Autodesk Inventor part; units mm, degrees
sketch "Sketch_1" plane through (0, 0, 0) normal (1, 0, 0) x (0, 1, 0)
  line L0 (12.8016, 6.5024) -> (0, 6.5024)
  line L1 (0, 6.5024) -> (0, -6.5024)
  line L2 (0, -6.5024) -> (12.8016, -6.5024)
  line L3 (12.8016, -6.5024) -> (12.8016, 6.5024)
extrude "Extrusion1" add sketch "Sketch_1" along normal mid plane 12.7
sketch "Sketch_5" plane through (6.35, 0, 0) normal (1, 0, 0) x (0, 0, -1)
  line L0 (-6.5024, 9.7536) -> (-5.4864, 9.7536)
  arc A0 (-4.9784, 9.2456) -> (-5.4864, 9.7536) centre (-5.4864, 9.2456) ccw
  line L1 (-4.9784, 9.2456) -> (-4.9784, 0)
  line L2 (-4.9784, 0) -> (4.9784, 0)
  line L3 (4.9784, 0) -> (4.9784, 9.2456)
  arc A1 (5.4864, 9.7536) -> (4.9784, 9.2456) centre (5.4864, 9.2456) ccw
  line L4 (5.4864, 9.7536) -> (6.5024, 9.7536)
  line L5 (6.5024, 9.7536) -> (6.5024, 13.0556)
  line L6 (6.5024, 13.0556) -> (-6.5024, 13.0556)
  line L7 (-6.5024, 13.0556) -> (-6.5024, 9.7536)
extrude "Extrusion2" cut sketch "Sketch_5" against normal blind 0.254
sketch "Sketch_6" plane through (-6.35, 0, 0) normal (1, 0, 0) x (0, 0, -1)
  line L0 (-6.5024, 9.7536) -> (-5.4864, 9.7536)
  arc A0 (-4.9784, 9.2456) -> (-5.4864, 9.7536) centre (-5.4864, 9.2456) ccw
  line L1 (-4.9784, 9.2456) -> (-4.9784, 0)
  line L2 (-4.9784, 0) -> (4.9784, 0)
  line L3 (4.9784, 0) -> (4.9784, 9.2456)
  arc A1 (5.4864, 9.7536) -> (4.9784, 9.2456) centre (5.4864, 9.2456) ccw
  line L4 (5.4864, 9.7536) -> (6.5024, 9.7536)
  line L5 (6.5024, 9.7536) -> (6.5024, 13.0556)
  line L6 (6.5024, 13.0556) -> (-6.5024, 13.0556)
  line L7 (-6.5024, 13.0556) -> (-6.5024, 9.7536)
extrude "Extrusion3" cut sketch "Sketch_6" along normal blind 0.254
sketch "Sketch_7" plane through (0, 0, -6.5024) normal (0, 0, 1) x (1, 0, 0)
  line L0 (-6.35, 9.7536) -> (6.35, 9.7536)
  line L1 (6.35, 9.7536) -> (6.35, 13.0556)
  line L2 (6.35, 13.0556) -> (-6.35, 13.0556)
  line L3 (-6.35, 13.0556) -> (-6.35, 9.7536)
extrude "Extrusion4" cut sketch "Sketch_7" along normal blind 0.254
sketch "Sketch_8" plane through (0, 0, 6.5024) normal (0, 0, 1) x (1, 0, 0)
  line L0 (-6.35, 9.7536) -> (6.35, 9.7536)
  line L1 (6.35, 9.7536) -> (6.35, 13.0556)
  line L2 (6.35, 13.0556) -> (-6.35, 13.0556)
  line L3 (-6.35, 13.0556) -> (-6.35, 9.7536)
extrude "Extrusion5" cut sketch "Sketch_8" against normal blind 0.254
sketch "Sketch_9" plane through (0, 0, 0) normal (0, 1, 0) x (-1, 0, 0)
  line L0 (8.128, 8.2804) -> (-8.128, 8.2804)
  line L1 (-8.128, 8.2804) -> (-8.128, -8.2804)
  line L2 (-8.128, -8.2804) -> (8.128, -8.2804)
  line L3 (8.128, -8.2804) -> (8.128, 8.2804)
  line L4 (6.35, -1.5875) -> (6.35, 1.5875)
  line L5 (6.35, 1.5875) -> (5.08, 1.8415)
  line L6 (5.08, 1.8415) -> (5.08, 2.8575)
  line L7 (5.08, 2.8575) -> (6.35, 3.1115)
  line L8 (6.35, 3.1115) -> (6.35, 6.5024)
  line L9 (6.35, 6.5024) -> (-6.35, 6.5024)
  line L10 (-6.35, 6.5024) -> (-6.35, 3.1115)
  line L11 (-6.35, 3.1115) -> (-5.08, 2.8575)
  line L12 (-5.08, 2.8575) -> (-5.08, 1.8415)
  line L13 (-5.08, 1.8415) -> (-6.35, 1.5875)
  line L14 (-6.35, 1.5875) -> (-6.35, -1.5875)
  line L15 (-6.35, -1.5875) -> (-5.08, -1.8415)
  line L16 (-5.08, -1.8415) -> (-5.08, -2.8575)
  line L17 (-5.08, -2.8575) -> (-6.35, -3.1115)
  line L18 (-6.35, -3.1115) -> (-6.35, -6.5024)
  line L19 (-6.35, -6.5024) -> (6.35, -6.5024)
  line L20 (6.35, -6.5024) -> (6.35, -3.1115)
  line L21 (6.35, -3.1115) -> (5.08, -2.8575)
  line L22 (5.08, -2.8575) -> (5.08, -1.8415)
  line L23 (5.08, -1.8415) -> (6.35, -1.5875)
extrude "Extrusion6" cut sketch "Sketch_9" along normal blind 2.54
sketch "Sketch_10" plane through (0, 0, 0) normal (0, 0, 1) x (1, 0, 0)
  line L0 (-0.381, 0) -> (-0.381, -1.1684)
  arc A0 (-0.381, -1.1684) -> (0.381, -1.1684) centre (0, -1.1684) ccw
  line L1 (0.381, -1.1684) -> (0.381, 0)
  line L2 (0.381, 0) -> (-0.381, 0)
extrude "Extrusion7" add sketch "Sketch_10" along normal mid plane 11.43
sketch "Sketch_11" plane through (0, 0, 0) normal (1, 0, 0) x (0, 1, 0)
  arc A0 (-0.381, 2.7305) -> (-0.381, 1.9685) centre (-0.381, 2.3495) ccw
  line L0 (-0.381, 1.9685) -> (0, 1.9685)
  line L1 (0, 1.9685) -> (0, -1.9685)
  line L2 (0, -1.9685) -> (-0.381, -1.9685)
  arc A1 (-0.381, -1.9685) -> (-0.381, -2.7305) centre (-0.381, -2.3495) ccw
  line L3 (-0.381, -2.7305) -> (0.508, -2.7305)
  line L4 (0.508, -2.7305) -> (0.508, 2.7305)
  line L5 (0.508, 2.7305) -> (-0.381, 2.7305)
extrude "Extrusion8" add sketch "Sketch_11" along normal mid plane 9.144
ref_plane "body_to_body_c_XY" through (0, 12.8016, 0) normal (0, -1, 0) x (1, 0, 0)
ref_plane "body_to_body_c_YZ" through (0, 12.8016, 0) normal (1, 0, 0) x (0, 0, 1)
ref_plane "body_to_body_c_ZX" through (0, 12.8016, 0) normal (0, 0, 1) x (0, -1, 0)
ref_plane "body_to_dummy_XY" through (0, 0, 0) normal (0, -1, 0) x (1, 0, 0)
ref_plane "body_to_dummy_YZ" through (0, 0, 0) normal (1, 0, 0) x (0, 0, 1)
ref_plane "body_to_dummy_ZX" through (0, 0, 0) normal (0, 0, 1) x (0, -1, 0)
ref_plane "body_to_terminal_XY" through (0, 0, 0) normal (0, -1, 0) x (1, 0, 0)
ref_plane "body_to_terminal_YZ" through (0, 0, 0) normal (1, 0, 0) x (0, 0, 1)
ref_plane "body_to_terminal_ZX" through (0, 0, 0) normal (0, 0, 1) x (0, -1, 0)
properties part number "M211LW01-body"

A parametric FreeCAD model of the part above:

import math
import FreeCAD as App
import Part
import Sketcher
from FreeCAD import Vector
Q = App.Units.Quantity

doc = App.newDocument("Part")
body = doc.addObject("PartDesign::Body", "Body")

# Sketch on YZ plane
sketch1 = body.newObject("Sketcher::SketchObject", "Sketch")
sketch1.AttachmentSupport = (doc.getObject("YZ_Plane"), [""])
sketch1.MapMode = "FlatFace"
sketch1.addGeometry([
    Part.LineSegment(Vector(13, -7, 0), Vector(13, 7, 0)),
    Part.LineSegment(Vector(13, 7, 0), Vector(0, 7, 0)),
    Part.LineSegment(Vector(0, 7, 0), Vector(0, -7, 0)),
    Part.LineSegment(Vector(0, -7, 0), Vector(13, -7, 0)),
], False)
sketch1.addConstraint([
    Sketcher.Constraint("Coincident", 0, 2, 1, 1),
    Sketcher.Constraint("Coincident", 1, 2, 2, 1),
    Sketcher.Constraint("Coincident", 2, 2, 3, 1),
    Sketcher.Constraint("Coincident", 3, 2, 0, 1),
    Sketcher.Constraint("Vertical", 0),
    Sketcher.Constraint("Horizontal", 1),
    Sketcher.Constraint("Vertical", 2),
    Sketcher.Constraint("Horizontal", 3),
    Sketcher.Constraint("Symmetric", 1, 2, 2, 2, -1, 1),
    Sketcher.Constraint("DistanceX", 1, 2, 1, 1, Q("0.504 in")),
    Sketcher.Constraint("DistanceY", 0, 1, 0, 2, Q("0.512 in")),
])
pad1 = body.newObject("PartDesign::Pad", "Pad")
pad1.Profile = sketch1
pad1.Length = Q("0.5 in")
pad1.Midplane = True

# Sketch on YZ plane
sketch2 = body.newObject("Sketcher::SketchObject", "Sketch001")
sketch2.AttachmentSupport = (doc.getObject("YZ_Plane"), [""])
sketch2.MapMode = "FlatFace"
sketch2.AttachmentOffset = App.Placement(Vector(0, 0, 0.25 * 25.4), App.Rotation())
sketch2.addGeometry([
    Part.LineSegment(Vector(13.1, 6.5, 0), Vector(9.8, 6.5, 0)),  # 0
    Part.LineSegment(Vector(9.8, 6.5, 0), Vector(9.8, 5.5, 0)),  # 1
    Part.ArcOfCircle(Part.Circle(Vector(9.2, 5.5, 0), Vector(0, 0, 1), 0.5), math.radians(-90), math.radians(0)),  # 2
    Part.LineSegment(Vector(9.2, 5, 0), Vector(0, 5, 0)),  # 3
    Part.LineSegment(Vector(0, 5, 0), Vector(0, -5, 0)),  # 4
    Part.LineSegment(Vector(0, -5, 0), Vector(9.2, -5, 0)),  # 5
    Part.ArcOfCircle(Part.Circle(Vector(9.2, -5.5, 0), Vector(0, 0, 1), 0.5), math.radians(0), math.radians(90)),  # 6
    Part.LineSegment(Vector(9.8, -5.5, 0), Vector(9.8, -6.5, 0)),  # 7
    Part.LineSegment(Vector(9.8, -6.5, 0), Vector(13.1, -6.5, 0)),  # 8
    Part.LineSegment(Vector(13.1, -6.5, 0), Vector(13.1, 6.5, 0)),  # 9
], False)
sketch2.addConstraint([
    Sketcher.Constraint("Coincident", 0, 2, 1, 1),
    Sketcher.Constraint("Tangent", 1, 2, 2, 2),
    Sketcher.Constraint("Tangent", 2, 1, 3, 1),
    Sketcher.Constraint("Coincident", 3, 2, 4, 1),
    Sketcher.Constraint("Coincident", 4, 2, 5, 1),
    Sketcher.Constraint("Tangent", 5, 2, 6, 2),
    Sketcher.Constraint("Tangent", 6, 1, 7, 1),
    Sketcher.Constraint("Coincident", 7, 2, 8, 1),
    Sketcher.Constraint("Coincident", 8, 2, 9, 1),
    Sketcher.Constraint("Coincident", 9, 2, 0, 1),
    Sketcher.Constraint("Horizontal", 0),
    Sketcher.Constraint("Vertical", 1),
    Sketcher.Constraint("Horizontal", 3),
    Sketcher.Constraint("Vertical", 4),
    Sketcher.Constraint("Horizontal", 5),
    Sketcher.Constraint("Vertical", 7),
    Sketcher.Constraint("Horizontal", 8),
    Sketcher.Constraint("Vertical", 9),
    Sketcher.Constraint("Equal", 2, 6),
    Sketcher.Constraint("Symmetric", 3, 2, 4, 2, -1, 1),
    Sketcher.Constraint("Symmetric", 0, 2, 7, 2, -1),
    Sketcher.Constraint("Radius", 2, Q("0.02 in")),
    Sketcher.Constraint("DistanceX", 0, 2, 0, 1, Q("0.13 in")),
    Sketcher.Constraint("DistanceY", 1, 2, 1, 1, Q("0.04 in")),
    Sketcher.Constraint("DistanceX", 3, 2, 3, 1, Q("0.364 in")),
    Sketcher.Constraint("DistanceY", 4, 2, 4, 1, Q("0.392 in")),
])
pocket1 = body.newObject("PartDesign::Pocket", "Pocket")
pocket1.Profile = sketch2
pocket1.Length = Q("0.01 in")

# Sketch on YZ plane
sketch3 = body.newObject("Sketcher::SketchObject", "Sketch002")
sketch3.AttachmentSupport = (doc.getObject("YZ_Plane"), [""])
sketch3.MapMode = "FlatFace"
sketch3.AttachmentOffset = App.Placement(Vector(0, 0, -0.25 * 25.4), App.Rotation())
sketch3.addGeometry([
    Part.LineSegment(Vector(13.1, 6.5, 0), Vector(9.8, 6.5, 0)),  # 0
    Part.LineSegment(Vector(9.8, 6.5, 0), Vector(9.8, 5.5, 0)),  # 1
    Part.ArcOfCircle(Part.Circle(Vector(9.2, 5.5, 0), Vector(0, 0, 1), 0.5), math.radians(-90), math.radians(0)),  # 2
    Part.LineSegment(Vector(9.2, 5, 0), Vector(0, 5, 0)),  # 3
    Part.LineSegment(Vector(0, 5, 0), Vector(0, -5, 0)),  # 4
    Part.LineSegment(Vector(0, -5, 0), Vector(9.2, -5, 0)),  # 5
    Part.ArcOfCircle(Part.Circle(Vector(9.2, -5.5, 0), Vector(0, 0, 1), 0.5), math.radians(0), math.radians(90)),  # 6
    Part.LineSegment(Vector(9.8, -5.5, 0), Vector(9.8, -6.5, 0)),  # 7
    Part.LineSegment(Vector(9.8, -6.5, 0), Vector(13.1, -6.5, 0)),  # 8
    Part.LineSegment(Vector(13.1, -6.5, 0), Vector(13.1, 6.5, 0)),  # 9
], False)
sketch3.addConstraint([
    Sketcher.Constraint("Coincident", 0, 2, 1, 1),
    Sketcher.Constraint("Tangent", 1, 2, 2, 2),
    Sketcher.Constraint("Tangent", 2, 1, 3, 1),
    Sketcher.Constraint("Coincident", 3, 2, 4, 1),
    Sketcher.Constraint("Coincident", 4, 2, 5, 1),
    Sketcher.Constraint("Tangent", 5, 2, 6, 2),
    Sketcher.Constraint("Tangent", 6, 1, 7, 1),
    Sketcher.Constraint("Coincident", 7, 2, 8, 1),
    Sketcher.Constraint("Coincident", 8, 2, 9, 1),
    Sketcher.Constraint("Coincident", 9, 2, 0, 1),
    Sketcher.Constraint("Horizontal", 0),
    Sketcher.Constraint("Vertical", 1),
    Sketcher.Constraint("Horizontal", 3),
    Sketcher.Constraint("Vertical", 4),
    Sketcher.Constraint("Horizontal", 5),
    Sketcher.Constraint("Vertical", 7),
    Sketcher.Constraint("Horizontal", 8),
    Sketcher.Constraint("Vertical", 9),
    Sketcher.Constraint("Equal", 2, 6),
    Sketcher.Constraint("Symmetric", 3, 2, 4, 2, -1, 1),
    Sketcher.Constraint("Symmetric", 0, 2, 7, 2, -1),
    Sketcher.Constraint("Radius", 2, Q("0.02 in")),
    Sketcher.Constraint("DistanceX", 0, 2, 0, 1, Q("0.13 in")),
    Sketcher.Constraint("DistanceY", 1, 2, 1, 1, Q("0.04 in")),
    Sketcher.Constraint("DistanceX", 3, 2, 3, 1, Q("0.364 in")),
    Sketcher.Constraint("DistanceY", 4, 2, 4, 1, Q("0.392 in")),
])
pocket2 = body.newObject("PartDesign::Pocket", "Pocket001")
pocket2.Profile = sketch3
pocket2.Length = Q("0.01 in")
pocket2.Reversed = True

# Sketch on XY plane
sketch4 = body.newObject("Sketcher::SketchObject", "Sketch003")
sketch4.AttachmentSupport = (doc.getObject("XY_Plane"), [""])
sketch4.MapMode = "FlatFace"
sketch4.AttachmentOffset = App.Placement(Vector(0, 0, -0.256 * 25.4), App.Rotation())
sketch4.addGeometry([
    Part.LineSegment(Vector(-6.3, 13.1, 0), Vector(-6.3, 9.8, 0)),
    Part.LineSegment(Vector(-6.3, 9.8, 0), Vector(6.3, 9.8, 0)),
    Part.LineSegment(Vector(6.3, 9.8, 0), Vector(6.3, 13.1, 0)),
    Part.LineSegment(Vector(6.3, 13.1, 0), Vector(-6.3, 13.1, 0)),
], False)
sketch4.addConstraint([
    Sketcher.Constraint("Coincident", 0, 2, 1, 1),
    Sketcher.Constraint("Coincident", 1, 2, 2, 1),
    Sketcher.Constraint("Coincident", 2, 2, 3, 1),
    Sketcher.Constraint("Coincident", 3, 2, 0, 1),
    Sketcher.Constraint("Vertical", 0),
    Sketcher.Constraint("Horizontal", 1),
    Sketcher.Constraint("Vertical", 2),
    Sketcher.Constraint("Horizontal", 3),
    Sketcher.Constraint("DistanceX", 1, 1, 1, 2, Q("0.5 in")),
    Sketcher.Constraint("DistanceY", 0, 2, 0, 1, Q("0.13 in")),
    Sketcher.Constraint("DistanceX", 0, 2, -1, 1, Q("0.25 in")),
    Sketcher.Constraint("DistanceY", -1, 1, 0, 2, Q("0.384 in")),
])
pocket3 = body.newObject("PartDesign::Pocket", "Pocket002")
pocket3.Profile = sketch4
pocket3.Length = Q("0.01 in")
pocket3.Reversed = True

# Sketch on XY plane
sketch5 = body.newObject("Sketcher::SketchObject", "Sketch004")
sketch5.AttachmentSupport = (doc.getObject("XY_Plane"), [""])
sketch5.MapMode = "FlatFace"
sketch5.AttachmentOffset = App.Placement(Vector(0, 0, 0.256 * 25.4), App.Rotation())
sketch5.addGeometry([
    Part.LineSegment(Vector(-6.3, 13.1, 0), Vector(-6.3, 9.8, 0)),
    Part.LineSegment(Vector(-6.3, 9.8, 0), Vector(6.3, 9.8, 0)),
    Part.LineSegment(Vector(6.3, 9.8, 0), Vector(6.3, 13.1, 0)),
    Part.LineSegment(Vector(6.3, 13.1, 0), Vector(-6.3, 13.1, 0)),
], False)
sketch5.addConstraint([
    Sketcher.Constraint("Coincident", 0, 2, 1, 1),
    Sketcher.Constraint("Coincident", 1, 2, 2, 1),
    Sketcher.Constraint("Coincident", 2, 2, 3, 1),
    Sketcher.Constraint("Coincident", 3, 2, 0, 1),
    Sketcher.Constraint("Vertical", 0),
    Sketcher.Constraint("Horizontal", 1),
    Sketcher.Constraint("Vertical", 2),
    Sketcher.Constraint("Horizontal", 3),
    Sketcher.Constraint("DistanceX", 1, 1, 1, 2, Q("0.5 in")),
    Sketcher.Constraint("DistanceY", 0, 2, 0, 1, Q("0.13 in")),
    Sketcher.Constraint("DistanceX", 0, 2, -1, 1, Q("0.25 in")),
    Sketcher.Constraint("DistanceY", -1, 1, 0, 2, Q("0.384 in")),
])
pocket4 = body.newObject("PartDesign::Pocket", "Pocket003")
pocket4.Profile = sketch5
pocket4.Length = Q("0.01 in")

# Sketch on XZ plane
sketch6 = body.newObject("Sketcher::SketchObject", "Sketch005")
sketch6.AttachmentSupport = (doc.getObject("XZ_Plane"), [""])
sketch6.MapMode = "FlatFace"
sketch6.addGeometry([
    Part.LineSegment(Vector(-8.1, -8.3, 0), Vector(-8.1, 8.3, 0)),  # 0
    Part.LineSegment(Vector(-8.1, 8.3, 0), Vector(8.1, 8.3, 0)),  # 1
    Part.LineSegment(Vector(8.1, 8.3, 0), Vector(8.1, -8.3, 0)),  # 2
    Part.LineSegment(Vector(8.1, -8.3, 0), Vector(-8.1, -8.3, 0)),  # 3
    Part.LineSegment(Vector(-6.3, 1.6, 0), Vector(-6.3, -1.6, 0)),  # 4
    Part.LineSegment(Vector(-6.3, -1.6, 0), Vector(-5.1, -1.8, 0)),  # 5
    Part.LineSegment(Vector(-5.1, -1.8, 0), Vector(-5.1, -2.9, 0)),  # 6
    Part.LineSegment(Vector(-5.1, -2.9, 0), Vector(-6.3, -3.1, 0)),  # 7
    Part.LineSegment(Vector(-6.3, -3.1, 0), Vector(-6.3, -6.5, 0)),  # 8
    Part.LineSegment(Vector(-6.3, -6.5, 0), Vector(6.3, -6.5, 0)),  # 9
    Part.LineSegment(Vector(6.3, -6.5, 0), Vector(6.3, -3.1, 0)),  # 10
    Part.LineSegment(Vector(6.3, -3.1, 0), Vector(5.1, -2.9, 0)),  # 11
    Part.LineSegment(Vector(5.1, -2.9, 0), Vector(5.1, -1.8, 0)),  # 12
    Part.LineSegment(Vector(5.1, -1.8, 0), Vector(6.3, -1.6, 0)),  # 13
    Part.LineSegment(Vector(6.3, -1.6, 0), Vector(6.3, 1.6, 0)),  # 14
    Part.LineSegment(Vector(6.3, 1.6, 0), Vector(5.1, 1.8, 0)),  # 15
    Part.LineSegment(Vector(5.1, 1.8, 0), Vector(5.1, 2.9, 0)),  # 16
    Part.LineSegment(Vector(5.1, 2.9, 0), Vector(6.3, 3.1, 0)),  # 17
    Part.LineSegment(Vector(6.3, 3.1, 0), Vector(6.3, 6.5, 0)),  # 18
    Part.LineSegment(Vector(6.3, 6.5, 0), Vector(-6.3, 6.5, 0)),  # 19
    Part.LineSegment(Vector(-6.3, 6.5, 0), Vector(-6.3, 3.1, 0)),  # 20
    Part.LineSegment(Vector(-6.3, 3.1, 0), Vector(-5.1, 2.9, 0)),  # 21
    Part.LineSegment(Vector(-5.1, 2.9, 0), Vector(-5.1, 1.8, 0)),  # 22
    Part.LineSegment(Vector(-5.1, 1.8, 0), Vector(-6.3, 1.6, 0)),  # 23
], False)
sketch6.addConstraint([
    Sketcher.Constraint("Coincident", 0, 2, 1, 1),
    Sketcher.Constraint("Coincident", 1, 2, 2, 1),
    Sketcher.Constraint("Coincident", 2, 2, 3, 1),
    Sketcher.Constraint("Coincident", 3, 2, 0, 1),
    Sketcher.Constraint("Coincident", 4, 2, 5, 1),
    Sketcher.Constraint("Coincident", 5, 2, 6, 1),
    Sketcher.Constraint("Coincident", 6, 2, 7, 1),
    Sketcher.Constraint("Coincident", 7, 2, 8, 1),
    Sketcher.Constraint("Coincident", 8, 2, 9, 1),
    Sketcher.Constraint("Coincident", 9, 2, 10, 1),
    Sketcher.Constraint("Coincident", 10, 2, 11, 1),
    Sketcher.Constraint("Coincident", 11, 2, 12, 1),
    Sketcher.Constraint("Coincident", 12, 2, 13, 1),
    Sketcher.Constraint("Coincident", 13, 2, 14, 1),
    Sketcher.Constraint("Coincident", 14, 2, 15, 1),
    Sketcher.Constraint("Coincident", 15, 2, 16, 1),
    Sketcher.Constraint("Coincident", 16, 2, 17, 1),
    Sketcher.Constraint("Coincident", 17, 2, 18, 1),
    Sketcher.Constraint("Coincident", 18, 2, 19, 1),
    Sketcher.Constraint("Coincident", 19, 2, 20, 1),
    Sketcher.Constraint("Coincident", 20, 2, 21, 1),
    Sketcher.Constraint("Coincident", 21, 2, 22, 1),
    Sketcher.Constraint("Coincident", 22, 2, 23, 1),
    Sketcher.Constraint("Coincident", 23, 2, 4, 1),
    Sketcher.Constraint("Vertical", 0),
    Sketcher.Constraint("Horizontal", 1),
    Sketcher.Constraint("Vertical", 2),
    Sketcher.Constraint("Horizontal", 3),
    Sketcher.Constraint("Vertical", 4),
    Sketcher.Constraint("Vertical", 6),
    Sketcher.Constraint("Vertical", 8),
    Sketcher.Constraint("Horizontal", 9),
    Sketcher.Constraint("Vertical", 10),
    Sketcher.Constraint("Vertical", 12),
    Sketcher.Constraint("Vertical", 14),
    Sketcher.Constraint("Vertical", 16),
    Sketcher.Constraint("Vertical", 18),
    Sketcher.Constraint("Horizontal", 19),
    Sketcher.Constraint("Vertical", 20),
    Sketcher.Constraint("Vertical", 22),
    Sketcher.Constraint("Symmetric", 0, 2, 2, 2, -1, 1),
    Sketcher.Constraint("Symmetric", 4, 2, 14, 2, -1, 1),
    Sketcher.Constraint("Symmetric", 5, 2, 15, 2, -1, 1),
    Sketcher.Constraint("Symmetric", 7, 2, 17, 2, -1, 1),
    Sketcher.Constraint("Symmetric", 9, 2, 19, 2, -1, 1),
    Sketcher.Constraint("Symmetric", 11, 2, 21, 2, -1, 1),
    Sketcher.Constraint("Symmetric", 7, 2, 10, 2, -2),
    Sketcher.Constraint("Symmetric", 6, 2, 11, 2, -2),
    Sketcher.Constraint("Parallel", 5, 11),
    Sketcher.Constraint("Parallel", 7, 13),
    Sketcher.Constraint("Parallel", 13, 17),
    Sketcher.Constraint("Parallel", 15, 21),
    Sketcher.Constraint("Parallel", 17, 23),
    Sketcher.Constraint("Horizontal", 5, 2, 12, 2),
    Sketcher.Constraint("Horizontal", 15, 2, 22, 2),
    Sketcher.Constraint("Vertical", 4, 2, 7, 2),
    Sketcher.Constraint("DistanceX", 9, 1, 9, 2, Q("0.5 in")),
    Sketcher.Constraint("DistanceX", 1, 1, 1, 2, Q("0.64 in")),
    Sketcher.Constraint("DistanceY", 6, 2, 6, 1, Q("0.04 in")),
    Sketcher.Constraint("DistanceX", 5, 2, -1, 1, Q("0.2 in")),
    Sketcher.Constraint("DistanceY", 0, 1, 0, 2, Q("0.652 in")),
    Sketcher.Constraint("DistanceY", 4, 2, 4, 1, Q("0.125 in")),
    Sketcher.Constraint("Angle", 5, Q("-11.31 deg")),
    Sketcher.Constraint("DistanceY", 3, 2, 8, 2, Q("0.07 in")),
])
pocket5 = body.newObject("PartDesign::Pocket", "Pocket004")
pocket5.Profile = sketch6
pocket5.Length = Q("0.1 in")

# Sketch on XY plane
sketch7 = body.newObject("Sketcher::SketchObject", "Sketch006")
sketch7.AttachmentSupport = (doc.getObject("XY_Plane"), [""])
sketch7.MapMode = "FlatFace"
sketch7.addGeometry([
    Part.LineSegment(Vector(0.38, 0, 0), Vector(-0.38, 0, 0)),
    Part.LineSegment(Vector(-0.38, 0, 0), Vector(-0.38, -1.17, 0)),
    Part.ArcOfCircle(Part.Circle(Vector(0, -1.17, 0), Vector(0, 0, 1), 0.38), math.radians(180), math.radians(360)),
    Part.LineSegment(Vector(0.38, -1.17, 0), Vector(0.38, 0, 0)),
], False)
sketch7.addConstraint([
    Sketcher.Constraint("Coincident", 0, 2, 1, 1),
    Sketcher.Constraint("Tangent", 1, 2, 2, 1),
    Sketcher.Constraint("Tangent", 2, 2, 3, 1),
    Sketcher.Constraint("Coincident", 3, 2, 0, 1),
    Sketcher.Constraint("Horizontal", 0),
    Sketcher.Constraint("Vertical", 1),
    Sketcher.Constraint("Vertical", 3),
    Sketcher.Constraint("Symmetric", 0, 2, 3, 2, -1, 1),
    Sketcher.Constraint("Radius", 2, Q("0.015 in")),
    Sketcher.Constraint("DistanceY", 1, 2, 1, 1, Q("0.046 in")),
])
pad2 = body.newObject("PartDesign::Pad", "Pad001")
pad2.Profile = sketch7
pad2.Length = Q("0.45 in")
pad2.Midplane = True

# Sketch on YZ plane
sketch8 = body.newObject("Sketcher::SketchObject", "Sketch007")
sketch8.AttachmentSupport = (doc.getObject("YZ_Plane"), [""])
sketch8.MapMode = "FlatFace"
sketch8.addGeometry([
    Part.LineSegment(Vector(0.51, 2.73, 0), Vector(-0.38, 2.73, 0)),  # 0
    Part.ArcOfCircle(Part.Circle(Vector(-0.38, 2.35, 0), Vector(0, 0, 1), 0.38), math.radians(90), math.radians(270)),  # 1
    Part.LineSegment(Vector(-0.38, 1.97, 0), Vector(0, 1.97, 0)),  # 2
    Part.LineSegment(Vector(0, 1.97, 0), Vector(0, -1.97, 0)),  # 3
    Part.LineSegment(Vector(0, -1.97, 0), Vector(-0.38, -1.97, 0)),  # 4
    Part.ArcOfCircle(Part.Circle(Vector(-0.38, -2.35, 0), Vector(0, 0, 1), 0.38), math.radians(90), math.radians(270)),  # 5
    Part.LineSegment(Vector(-0.38, -2.73, 0), Vector(0.51, -2.73, 0)),  # 6
    Part.LineSegment(Vector(0.51, -2.73, 0), Vector(0.51, 2.73, 0)),  # 7
], False)
sketch8.addConstraint([
    Sketcher.Constraint("Tangent", 0, 2, 1, 1),
    Sketcher.Constraint("Tangent", 1, 2, 2, 1),
    Sketcher.Constraint("Coincident", 2, 2, 3, 1),
    Sketcher.Constraint("Coincident", 3, 2, 4, 1),
    Sketcher.Constraint("Tangent", 4, 2, 5, 1),
    Sketcher.Constraint("Tangent", 5, 2, 6, 1),
    Sketcher.Constraint("Coincident", 6, 2, 7, 1),
    Sketcher.Constraint("Coincident", 7, 2, 0, 1),
    Sketcher.Constraint("Horizontal", 0),
    Sketcher.Constraint("Horizontal", 2),
    Sketcher.Constraint("Vertical", 3),
    Sketcher.Constraint("Horizontal", 4),
    Sketcher.Constraint("Horizontal", 6),
    Sketcher.Constraint("Vertical", 7),
    Sketcher.Constraint("Equal", 1, 5),
    Sketcher.Constraint("Symmetric", 2, 2, 3, 2, -1, 1),
    Sketcher.Constraint("Vertical", 1, 3, 5, 3),
    Sketcher.Constraint("Radius", 1, Q("0.015 in")),
    Sketcher.Constraint("DistanceY", 5, 3, 0, 2, Q("0.2 in")),
    Sketcher.Constraint("DistanceX", 0, 2, 0, 1, Q("0.035 in")),
    Sketcher.Constraint("DistanceX", 2, 1, 2, 2, Q("0.015 in")),
])
pad3 = body.newObject("PartDesign::Pad", "Pad002")
pad3.Profile = sketch8
pad3.Length = Q("0.36 in")
pad3.Midplane = True

doc.recompute()
